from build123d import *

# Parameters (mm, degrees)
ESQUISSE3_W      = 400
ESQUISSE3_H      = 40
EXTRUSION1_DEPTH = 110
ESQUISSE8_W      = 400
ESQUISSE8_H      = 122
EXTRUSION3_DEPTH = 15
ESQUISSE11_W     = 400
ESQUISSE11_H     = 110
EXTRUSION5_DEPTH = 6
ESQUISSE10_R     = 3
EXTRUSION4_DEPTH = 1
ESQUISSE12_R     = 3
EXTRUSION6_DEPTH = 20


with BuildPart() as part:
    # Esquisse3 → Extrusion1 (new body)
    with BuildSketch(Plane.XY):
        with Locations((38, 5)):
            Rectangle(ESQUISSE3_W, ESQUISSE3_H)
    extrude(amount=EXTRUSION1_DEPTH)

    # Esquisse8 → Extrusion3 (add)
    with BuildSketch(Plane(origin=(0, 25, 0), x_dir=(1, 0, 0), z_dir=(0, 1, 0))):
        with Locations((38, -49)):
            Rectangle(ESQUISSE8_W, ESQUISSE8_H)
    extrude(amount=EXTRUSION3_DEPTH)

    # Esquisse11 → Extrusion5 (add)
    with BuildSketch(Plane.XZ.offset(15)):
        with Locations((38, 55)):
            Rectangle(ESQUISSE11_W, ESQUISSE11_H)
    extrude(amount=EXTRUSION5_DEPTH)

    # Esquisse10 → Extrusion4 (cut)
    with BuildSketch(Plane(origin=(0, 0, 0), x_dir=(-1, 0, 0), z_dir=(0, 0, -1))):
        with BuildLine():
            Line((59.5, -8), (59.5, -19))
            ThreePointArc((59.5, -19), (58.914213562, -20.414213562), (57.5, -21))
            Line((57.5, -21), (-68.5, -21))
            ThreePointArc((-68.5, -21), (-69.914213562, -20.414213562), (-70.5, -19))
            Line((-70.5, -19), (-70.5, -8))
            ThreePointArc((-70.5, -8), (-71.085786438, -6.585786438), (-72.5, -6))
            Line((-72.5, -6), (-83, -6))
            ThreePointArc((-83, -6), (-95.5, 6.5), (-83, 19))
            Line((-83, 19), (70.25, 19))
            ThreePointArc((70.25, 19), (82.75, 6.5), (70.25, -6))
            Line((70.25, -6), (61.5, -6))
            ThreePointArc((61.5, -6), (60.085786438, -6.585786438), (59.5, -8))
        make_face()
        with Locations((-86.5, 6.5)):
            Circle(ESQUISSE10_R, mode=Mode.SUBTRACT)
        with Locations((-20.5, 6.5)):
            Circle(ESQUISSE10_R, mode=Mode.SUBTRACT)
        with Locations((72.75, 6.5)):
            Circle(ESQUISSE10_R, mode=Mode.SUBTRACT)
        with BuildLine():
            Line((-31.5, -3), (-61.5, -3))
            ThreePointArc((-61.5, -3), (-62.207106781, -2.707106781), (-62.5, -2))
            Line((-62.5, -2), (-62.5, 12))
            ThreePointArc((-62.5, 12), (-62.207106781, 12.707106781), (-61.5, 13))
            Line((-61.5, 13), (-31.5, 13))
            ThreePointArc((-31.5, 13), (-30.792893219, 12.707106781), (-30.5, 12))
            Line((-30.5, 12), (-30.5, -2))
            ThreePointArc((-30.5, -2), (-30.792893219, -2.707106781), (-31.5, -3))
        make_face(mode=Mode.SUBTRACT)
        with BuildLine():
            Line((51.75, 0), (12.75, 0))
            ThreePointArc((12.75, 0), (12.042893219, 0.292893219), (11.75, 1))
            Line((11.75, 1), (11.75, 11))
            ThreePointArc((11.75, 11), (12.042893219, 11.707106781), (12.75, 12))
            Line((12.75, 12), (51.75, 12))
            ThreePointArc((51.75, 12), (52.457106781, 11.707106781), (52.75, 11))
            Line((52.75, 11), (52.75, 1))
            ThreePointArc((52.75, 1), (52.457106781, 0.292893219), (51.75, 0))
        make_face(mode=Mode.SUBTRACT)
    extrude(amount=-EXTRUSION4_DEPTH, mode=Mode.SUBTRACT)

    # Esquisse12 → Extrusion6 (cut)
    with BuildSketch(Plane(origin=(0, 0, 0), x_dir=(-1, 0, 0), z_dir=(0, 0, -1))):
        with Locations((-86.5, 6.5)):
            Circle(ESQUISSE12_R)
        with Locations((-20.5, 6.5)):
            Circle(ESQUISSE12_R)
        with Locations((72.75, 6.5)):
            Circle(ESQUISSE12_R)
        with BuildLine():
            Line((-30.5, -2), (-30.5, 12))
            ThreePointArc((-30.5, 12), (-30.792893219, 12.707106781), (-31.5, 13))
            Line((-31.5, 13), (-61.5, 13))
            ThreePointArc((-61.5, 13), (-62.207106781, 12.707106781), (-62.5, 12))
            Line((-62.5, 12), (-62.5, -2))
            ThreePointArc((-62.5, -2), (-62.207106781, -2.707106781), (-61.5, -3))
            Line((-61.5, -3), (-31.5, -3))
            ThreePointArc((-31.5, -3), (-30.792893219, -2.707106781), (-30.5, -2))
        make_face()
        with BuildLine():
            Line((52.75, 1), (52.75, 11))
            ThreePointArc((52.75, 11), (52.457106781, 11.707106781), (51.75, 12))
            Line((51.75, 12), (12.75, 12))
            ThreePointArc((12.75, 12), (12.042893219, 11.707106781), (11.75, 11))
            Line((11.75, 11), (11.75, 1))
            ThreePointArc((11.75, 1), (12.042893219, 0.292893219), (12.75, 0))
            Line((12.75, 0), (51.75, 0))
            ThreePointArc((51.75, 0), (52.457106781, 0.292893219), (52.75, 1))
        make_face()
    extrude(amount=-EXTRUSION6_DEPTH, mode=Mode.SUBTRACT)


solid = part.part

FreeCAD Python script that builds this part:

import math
import FreeCAD as App
import Part
import Sketcher

V = App.Vector

doc = App.newDocument("Part")
body = doc.addObject("PartDesign::Body", "Body")

# Sketch on XY plane
sketch1 = body.newObject("Sketcher::SketchObject", "Sketch")
sketch1.AttachmentSupport = (doc.getObject("XY_Plane"), [""])
sketch1.MapMode = "FlatFace"
sketch1.addGeometry([
    Part.LineSegment(V(-162, 25, 0), V(-162, -15, 0)),
    Part.LineSegment(V(-162, -15, 0), V(238, -15, 0)),
    Part.LineSegment(V(238, -15, 0), V(238, 25, 0)),
    Part.LineSegment(V(238, 25, 0), V(-162, 25, 0)),
], False)
sketch1.addConstraint([
    Sketcher.Constraint("Coincident", 0, 2, 1, 1),
    Sketcher.Constraint("Coincident", 1, 2, 2, 1),
    Sketcher.Constraint("Coincident", 2, 2, 3, 1),
    Sketcher.Constraint("Coincident", 3, 2, 0, 1),
    Sketcher.Constraint("Vertical", 0),
    Sketcher.Constraint("Horizontal", 1),
    Sketcher.Constraint("Vertical", 2),
    Sketcher.Constraint("Horizontal", 3),
    Sketcher.Constraint("DistanceX", 1, 1, 1, 2, 400.0),
    Sketcher.Constraint("DistanceY", 0, 2, 0, 1, 40.0),
    Sketcher.Constraint("DistanceX", 0, 2, -1, 1, 162.0),
    Sketcher.Constraint("DistanceY", 0, 2, -1, 1, 15.0),
])
pad1 = body.newObject("PartDesign::Pad", "Pad")
pad1.Profile = sketch1
pad1.Length = 110

# Sketch on XZ plane
sketch2 = body.newObject("Sketcher::SketchObject", "Sketch001")
sketch2.AttachmentSupport = (doc.getObject("XZ_Plane"), [""])
sketch2.MapMode = "FlatFace"
sketch2.AttachmentOffset = App.Placement(V(0, 0, -25), App.Rotation())
sketch2.addGeometry([
    Part.LineSegment(V(-162, -12, 0), V(-162, 110, 0)),
    Part.LineSegment(V(-162, 110, 0), V(238, 110, 0)),
    Part.LineSegment(V(238, 110, 0), V(238, -12, 0)),
    Part.LineSegment(V(238, -12, 0), V(-162, -12, 0)),
], False)
sketch2.addConstraint([
    Sketcher.Constraint("Coincident", 0, 2, 1, 1),
    Sketcher.Constraint("Coincident", 1, 2, 2, 1),
    Sketcher.Constraint("Coincident", 2, 2, 3, 1),
    Sketcher.Constraint("Coincident", 3, 2, 0, 1),
    Sketcher.Constraint("Vertical", 0),
    Sketcher.Constraint("Horizontal", 1),
    Sketcher.Constraint("Vertical", 2),
    Sketcher.Constraint("Horizontal", 3),
    Sketcher.Constraint("DistanceX", 1, 1, 1, 2, 400.0),
    Sketcher.Constraint("DistanceY", 0, 1, 0, 2, 122.0),
    Sketcher.Constraint("DistanceX", 0, 2, -1, 1, 162.0),
    Sketcher.Constraint("DistanceY", -1, 1, 0, 2, 110.0),
])
pad2 = body.newObject("PartDesign::Pad", "Pad001")
pad2.Profile = sketch2
pad2.Length = 15
pad2.Reversed = True

# Sketch on XZ plane
sketch3 = body.newObject("Sketcher::SketchObject", "Sketch002")
sketch3.AttachmentSupport = (doc.getObject("XZ_Plane"), [""])
sketch3.MapMode = "FlatFace"
sketch3.AttachmentOffset = App.Placement(V(0, 0, 15), App.Rotation())
sketch3.addGeometry([
    Part.LineSegment(V(-162, 110, 0), V(-162, 0, 0)),
    Part.LineSegment(V(-162, 0, 0), V(238, 0, 0)),
    Part.LineSegment(V(238, 0, 0), V(238, 110, 0)),
    Part.LineSegment(V(238, 110, 0), V(-162, 110, 0)),
], False)
sketch3.addConstraint([
    Sketcher.Constraint("Coincident", 0, 2, 1, 1),
    Sketcher.Constraint("Coincident", 1, 2, 2, 1),
    Sketcher.Constraint("Coincident", 2, 2, 3, 1),
    Sketcher.Constraint("Coincident", 3, 2, 0, 1),
    Sketcher.Constraint("Vertical", 0),
    Sketcher.Constraint("Horizontal", 1),
    Sketcher.Constraint("Vertical", 2),
    Sketcher.Constraint("Horizontal", 3),
    Sketcher.Constraint("PointOnObject", 0, 2, -1),
    Sketcher.Constraint("DistanceX", 1, 1, 1, 2, 400.0),
    Sketcher.Constraint("DistanceY", 0, 2, 0, 1, 110.0),
    Sketcher.Constraint("DistanceX", 0, 2, -1, 1, 162.0),
])
pad3 = body.newObject("PartDesign::Pad", "Pad002")
pad3.Profile = sketch3
pad3.Length = 6

# Sketch on XY plane
sketch4 = body.newObject("Sketcher::SketchObject", "Sketch003")
sketch4.AttachmentSupport = (doc.getObject("XY_Plane"), [""])
sketch4.MapMode = "FlatFace"
sketch4.addGeometry([
    Part.LineSegment(V(-59.5, -19, 0), V(-59.5, -8, 0)),  # 0
    Part.ArcOfCircle(Part.Circle(V(-61.5, -8, 0), V(0, 0, 1), 2), math.radians(0), math.radians(90)),  # 1
    Part.LineSegment(V(-61.5, -6, 0), V(-70.2, -6, 0)),  # 2
    Part.ArcOfCircle(Part.Circle(V(-70.2, 6.5, 0), V(0, 0, 1), 12.5), math.radians(90), math.radians(270)),  # 3
    Part.LineSegment(V(-70.2, 19, 0), V(83, 19, 0)),  # 4
    Part.ArcOfCircle(Part.Circle(V(83, 6.5, 0), V(0, 0, 1), 12.5), math.radians(-90), math.radians(90)),  # 5
    Part.LineSegment(V(83, -6, 0), V(72.5, -6, 0)),  # 6
    Part.ArcOfCircle(Part.Circle(V(72.5, -8, 0), V(0, 0, 1), 2), math.radians(90), math.radians(180)),  # 7
    Part.LineSegment(V(70.5, -8, 0), V(70.5, -19, 0)),  # 8
    Part.ArcOfCircle(Part.Circle(V(68.5, -19, 0), V(0, 0, 1), 2), math.radians(-90), math.radians(0)),  # 9
    Part.LineSegment(V(68.5, -21, 0), V(-57.5, -21, 0)),  # 10
    Part.ArcOfCircle(Part.Circle(V(-57.5, -19, 0), V(0, 0, 1), 2), math.radians(-180), math.radians(-90)),  # 11
    Part.Circle(V(-72.8, 6.5, 0), V(0, 0, 1), 3),  # 12
    Part.LineSegment(V(-51.8, 0, 0), V(-12.8, 0, 0)),  # 13
    Part.ArcOfCircle(Part.Circle(V(-12.8, 1, 0), V(0, 0, 1), 1), math.radians(-90), math.radians(0)),  # 14
    Part.LineSegment(V(-11.8, 1, 0), V(-11.8, 11, 0)),  # 15
    Part.ArcOfCircle(Part.Circle(V(-12.8, 11, 0), V(0, 0, 1), 1), math.radians(0), math.radians(90)),  # 16
    Part.LineSegment(V(-12.8, 12, 0), V(-51.8, 12, 0)),  # 17
    Part.ArcOfCircle(Part.Circle(V(-51.7, 11, 0), V(0, 0, 1), 1), math.radians(90), math.radians(180)),  # 18
    Part.LineSegment(V(-52.8, 11, 0), V(-52.8, 1, 0)),  # 19
    Part.ArcOfCircle(Part.Circle(V(-51.7, 1, 0), V(0, 0, 1), 1), math.radians(-180), math.radians(-90)),  # 20
    Part.Circle(V(20.5, 6.5, 0), V(0, 0, 1), 3),  # 21
    Part.LineSegment(V(31.5, -3, 0), V(61.5, -3, 0)),  # 22
    Part.ArcOfCircle(Part.Circle(V(61.5, -2, 0), V(0, 0, 1), 1), math.radians(-90), math.radians(0)),  # 23
    Part.LineSegment(V(62.5, -2, 0), V(62.5, 12, 0)),  # 24
    Part.ArcOfCircle(Part.Circle(V(61.5, 12, 0), V(0, 0, 1), 1), math.radians(0), math.radians(90)),  # 25
    Part.LineSegment(V(61.5, 13, 0), V(31.5, 13, 0)),  # 26
    Part.ArcOfCircle(Part.Circle(V(31.5, 12, 0), V(0, 0, 1), 1), math.radians(90), math.radians(180)),  # 27
    Part.LineSegment(V(30.5, 12, 0), V(30.5, -2, 0)),  # 28
    Part.ArcOfCircle(Part.Circle(V(31.5, -2, 0), V(0, 0, 1), 1), math.radians(-180), math.radians(-90)),  # 29
    Part.Circle(V(86.5, 6.5, 0), V(0, 0, 1), 3),  # 30
], False)
sketch4.addConstraint([
    Sketcher.Constraint("Tangent", 0, 2, 1, 1),
    Sketcher.Constraint("Tangent", 1, 2, 2, 1),
    Sketcher.Constraint("Tangent", 2, 2, 3, 2),
    Sketcher.Constraint("Tangent", 3, 1, 4, 1),
    Sketcher.Constraint("Tangent", 4, 2, 5, 2),
    Sketcher.Constraint("Tangent", 5, 1, 6, 1),
    Sketcher.Constraint("Tangent", 6, 2, 7, 1),
    Sketcher.Constraint("Tangent", 7, 2, 8, 1),
    Sketcher.Constraint("Tangent", 8, 2, 9, 2),
    Sketcher.Constraint("Tangent", 9, 1, 10, 1),
    Sketcher.Constraint("Tangent", 10, 2, 11, 2),
    Sketcher.Constraint("Tangent", 11, 1, 0, 1),
    Sketcher.Constraint("Tangent", 13, 2, 14, 1),
    Sketcher.Constraint("Tangent", 14, 2, 15, 1),
    Sketcher.Constraint("Tangent", 15, 2, 16, 1),
    Sketcher.Constraint("Tangent", 16, 2, 17, 1),
    Sketcher.Constraint("Tangent", 17, 2, 18, 1),
    Sketcher.Constraint("Tangent", 18, 2, 19, 1),
    Sketcher.Constraint("Tangent", 19, 2, 20, 1),
    Sketcher.Constraint("Tangent", 20, 2, 13, 1),
    Sketcher.Constraint("Tangent", 22, 2, 23, 1),
    Sketcher.Constraint("Tangent", 23, 2, 24, 1),
    Sketcher.Constraint("Tangent", 24, 2, 25, 1),
    Sketcher.Constraint("Tangent", 25, 2, 26, 1),
    Sketcher.Constraint("Tangent", 26, 2, 27, 1),
    Sketcher.Constraint("Tangent", 27, 2, 28, 1),
    Sketcher.Constraint("Tangent", 28, 2, 29, 1),
    Sketcher.Constraint("Tangent", 29, 2, 22, 1),
    Sketcher.Constraint("Vertical", 0),
    Sketcher.Constraint("Horizontal", 2),
    Sketcher.Constraint("Horizontal", 4),
    Sketcher.Constraint("Horizontal", 6),
    Sketcher.Constraint("Vertical", 8),
    Sketcher.Constraint("Horizontal", 10),
    Sketcher.Constraint("Horizontal", 13),
    Sketcher.Constraint("Vertical", 15),
    Sketcher.Constraint("Horizontal", 17),
    Sketcher.Constraint("Vertical", 19),
    Sketcher.Constraint("Horizontal", 22),
    Sketcher.Constraint("Vertical", 24),
    Sketcher.Constraint("Horizontal", 26),
    Sketcher.Constraint("Vertical", 28),
    Sketcher.Constraint("Equal", 3, 5),
    Sketcher.Constraint("Equal", 1, 7),
    Sketcher.Constraint("Equal", 7, 9),
    Sketcher.Constraint("Equal", 9, 11),
    Sketcher.Constraint("Equal", 14, 16),
    Sketcher.Constraint("Equal", 16, 18),
    Sketcher.Constraint("Equal", 18, 20),
    Sketcher.Constraint("Equal", 12, 21),
    Sketcher.Constraint("Equal", 20, 23),
    Sketcher.Constraint("Equal", 23, 25),
    Sketcher.Constraint("Equal", 25, 27),
    Sketcher.Constraint("Equal", 27, 29),
    Sketcher.Constraint("Equal", 21, 30),
    Sketcher.Constraint("PointOnObject", 13, 2, -1),
    Sketcher.Constraint("Horizontal", 5, 3, 12, 3),
    Sketcher.Constraint("Horizontal", 12, 3, 21, 3),
    Sketcher.Constraint("Horizontal", 21, 3, 30, 3),
    Sketcher.Constraint("Horizontal", 27, 3, 16, 2),
    Sketcher.Constraint("Diameter", 12, 6.0),
    Sketcher.Constraint("Radius", 1, 2.0),
    Sketcher.Constraint("Radius", 14, 1.0),
    Sketcher.Constraint("Radius", 3, 12.5),
    Sketcher.Constraint("DistanceX", 10, 2, 10, 1, 126.0),
    Sketcher.Constraint("DistanceX", 13, 1, 13, 2, 39.0),
    Sketcher.Constraint("DistanceX", 22, 1, 22, 2, 30.0),
    Sketcher.Constraint("DistanceY", 0, 1, 0, 2, 11.0),
    Sketcher.Constraint("DistanceY", 15, 1, 15, 2, 10.0),
    Sketcher.Constraint("DistanceY", 24, 1, 24, 2, 14.0),
    Sketcher.Constraint("DistanceX", 6, 2, 6, 1, 10.5),
    Sketcher.Constraint("DistanceY", 1, 3, -1, 1, 8.0),
    Sketcher.Constraint("DistanceX", -1, 1, 5, 3, 83.0),
    Sketcher.Constraint("DistanceX", 12, 3, 14, 3, 60.0),
    Sketcher.Constraint("DistanceX", 21, 3, 7, 3, 52.0),
    Sketcher.Constraint("DistanceX", 23, 3, 7, 3, 11.0),
    Sketcher.Constraint("DistanceX", 7, 3, 30, 3, 14.0),
    Sketcher.Constraint("DistanceX", 2, 2, 2, 1, 8.75),
    Sketcher.Constraint("DistanceX", 12, 3, 3, 3, 2.5),
])
pocket1 = body.newObject("PartDesign::Pocket", "Pocket")
pocket1.Profile = sketch4
pocket1.Length = 1
pocket1.Reversed = True

# Sketch on XY plane
sketch5 = body.newObject("Sketcher::SketchObject", "Sketch004")
sketch5.AttachmentSupport = (doc.getObject("XY_Plane"), [""])
sketch5.MapMode = "FlatFace"
sketch5.addGeometry([
    Part.Circle(V(86.5, 6.5, 0), V(0, 0, 1), 3),  # 0
    Part.Circle(V(20.5, 6.5, 0), V(0, 0, 1), 3),  # 1
    Part.Circle(V(-72.8, 6.5, 0), V(0, 0, 1), 3),  # 2
    Part.LineSegment(V(30.5, -2, 0), V(30.5, 12, 0)),  # 3
    Part.ArcOfCircle(Part.Circle(V(31.5, 12, 0), V(0, 0, 1), 1), math.radians(90), math.radians(180)),  # 4
    Part.LineSegment(V(31.5, 13, 0), V(61.5, 13, 0)),  # 5
    Part.ArcOfCircle(Part.Circle(V(61.5, 12, 0), V(0, 0, 1), 1), math.radians(0), math.radians(90)),  # 6
    Part.LineSegment(V(62.5, 12, 0), V(62.5, -2, 0)),  # 7
    Part.ArcOfCircle(Part.Circle(V(61.5, -2, 0), V(0, 0, 1), 1), math.radians(-90), math.radians(0)),  # 8
    Part.LineSegment(V(61.5, -3, 0), V(31.5, -3, 0)),  # 9
    Part.ArcOfCircle(Part.Circle(V(31.5, -2, 0), V(0, 0, 1), 1), math.radians(-180), math.radians(-90)),  # 10
    Part.LineSegment(V(-52.8, 1, 0), V(-52.8, 11, 0)),  # 11
    Part.ArcOfCircle(Part.Circle(V(-51.7, 11, 0), V(0, 0, 1), 1), math.radians(90), math.radians(180)),  # 12
    Part.LineSegment(V(-51.8, 12, 0), V(-12.8, 12, 0)),  # 13
    Part.ArcOfCircle(Part.Circle(V(-12.8, 11, 0), V(0, 0, 1), 1), math.radians(0), math.radians(90)),  # 14
    Part.LineSegment(V(-11.8, 11, 0), V(-11.8, 1, 0)),  # 15
    Part.ArcOfCircle(Part.Circle(V(-12.8, 1, 0), V(0, 0, 1), 1), math.radians(-90), math.radians(0)),  # 16
    Part.LineSegment(V(-12.8, 0, 0), V(-51.8, 0, 0)),  # 17
    Part.ArcOfCircle(Part.Circle(V(-51.7, 1, 0), V(0, 0, 1), 1), math.radians(-180), math.radians(-90)),  # 18
], False)
sketch5.addConstraint([
    Sketcher.Constraint("Tangent", 3, 2, 4, 2),
    Sketcher.Constraint("Tangent", 4, 1, 5, 1),
    Sketcher.Constraint("Tangent", 5, 2, 6, 2),
    Sketcher.Constraint("Tangent", 6, 1, 7, 1),
    Sketcher.Constraint("Tangent", 7, 2, 8, 2),
    Sketcher.Constraint("Tangent", 8, 1, 9, 1),
    Sketcher.Constraint("Tangent", 9, 2, 10, 2),
    Sketcher.Constraint("Tangent", 10, 1, 3, 1),
    Sketcher.Constraint("Tangent", 11, 2, 12, 2),
    Sketcher.Constraint("Tangent", 12, 1, 13, 1),
    Sketcher.Constraint("Tangent", 13, 2, 14, 2),
    Sketcher.Constraint("Tangent", 14, 1, 15, 1),
    Sketcher.Constraint("Tangent", 15, 2, 16, 2),
    Sketcher.Constraint("Tangent", 16, 1, 17, 1),
    Sketcher.Constraint("Tangent", 17, 2, 18, 2),
    Sketcher.Constraint("Tangent", 18, 1, 11, 1),
    Sketcher.Constraint("Vertical", 3),
    Sketcher.Constraint("Horizontal", 5),
    Sketcher.Constraint("Vertical", 7),
    Sketcher.Constraint("Horizontal", 9),
    Sketcher.Constraint("Vertical", 11),
    Sketcher.Constraint("Horizontal", 13),
    Sketcher.Constraint("Vertical", 15),
    Sketcher.Constraint("Horizontal", 17),
    Sketcher.Constraint("Equal", 0, 1),
    Sketcher.Constraint("Equal", 1, 2),
    Sketcher.Constraint("Equal", 4, 6),
    Sketcher.Constraint("Equal", 6, 8),
    Sketcher.Constraint("Equal", 8, 10),
    Sketcher.Constraint("Equal", 10, 12),
    Sketcher.Constraint("Equal", 12, 14),
    Sketcher.Constraint("Equal", 14, 16),
    Sketcher.Constraint("Equal", 16, 18),
    Sketcher.Constraint("PointOnObject", 16, 1, -1),
    Sketcher.Constraint("Horizontal", 0, 3, 1, 3),
    Sketcher.Constraint("Horizontal", 1, 3, 2, 3),
    Sketcher.Constraint("Horizontal", 6, 1, 12, 1),
    Sketcher.Constraint("Diameter", 0, 6.0),
    Sketcher.Constraint("Radius", 4, 1.0),
    Sketcher.Constraint("DistanceX", 5, 1, 5, 2, 30.0),
    Sketcher.Constraint("DistanceX", 13, 1, 13, 2, 39.0),
    Sketcher.Constraint("DistanceY", 3, 1, 3, 2, 14.0),
    Sketcher.Constraint("DistanceY", 11, 1, 11, 2, 10.0),
    Sketcher.Constraint("DistanceX", 1, 3, 0, 3, 66.0),
    Sketcher.Constraint("DistanceX", 1, 3, 4, 3, 11.0),
    Sketcher.Constraint("DistanceX", 2, 3, 12, 3, 21.0),
    Sketcher.Constraint("DistanceX", -1, 1, 0, 3, 86.5),
    Sketcher.Constraint("DistanceY", -1, 1, 0, 3, 6.5),
    Sketcher.Constraint("DistanceX", 2, 3, -1, 1, 72.75),
])
pocket2 = body.newObject("PartDesign::Pocket", "Pocket001")
pocket2.Profile = sketch5
pocket2.Length = 20
pocket2.Reversed = True

doc.recompute()
